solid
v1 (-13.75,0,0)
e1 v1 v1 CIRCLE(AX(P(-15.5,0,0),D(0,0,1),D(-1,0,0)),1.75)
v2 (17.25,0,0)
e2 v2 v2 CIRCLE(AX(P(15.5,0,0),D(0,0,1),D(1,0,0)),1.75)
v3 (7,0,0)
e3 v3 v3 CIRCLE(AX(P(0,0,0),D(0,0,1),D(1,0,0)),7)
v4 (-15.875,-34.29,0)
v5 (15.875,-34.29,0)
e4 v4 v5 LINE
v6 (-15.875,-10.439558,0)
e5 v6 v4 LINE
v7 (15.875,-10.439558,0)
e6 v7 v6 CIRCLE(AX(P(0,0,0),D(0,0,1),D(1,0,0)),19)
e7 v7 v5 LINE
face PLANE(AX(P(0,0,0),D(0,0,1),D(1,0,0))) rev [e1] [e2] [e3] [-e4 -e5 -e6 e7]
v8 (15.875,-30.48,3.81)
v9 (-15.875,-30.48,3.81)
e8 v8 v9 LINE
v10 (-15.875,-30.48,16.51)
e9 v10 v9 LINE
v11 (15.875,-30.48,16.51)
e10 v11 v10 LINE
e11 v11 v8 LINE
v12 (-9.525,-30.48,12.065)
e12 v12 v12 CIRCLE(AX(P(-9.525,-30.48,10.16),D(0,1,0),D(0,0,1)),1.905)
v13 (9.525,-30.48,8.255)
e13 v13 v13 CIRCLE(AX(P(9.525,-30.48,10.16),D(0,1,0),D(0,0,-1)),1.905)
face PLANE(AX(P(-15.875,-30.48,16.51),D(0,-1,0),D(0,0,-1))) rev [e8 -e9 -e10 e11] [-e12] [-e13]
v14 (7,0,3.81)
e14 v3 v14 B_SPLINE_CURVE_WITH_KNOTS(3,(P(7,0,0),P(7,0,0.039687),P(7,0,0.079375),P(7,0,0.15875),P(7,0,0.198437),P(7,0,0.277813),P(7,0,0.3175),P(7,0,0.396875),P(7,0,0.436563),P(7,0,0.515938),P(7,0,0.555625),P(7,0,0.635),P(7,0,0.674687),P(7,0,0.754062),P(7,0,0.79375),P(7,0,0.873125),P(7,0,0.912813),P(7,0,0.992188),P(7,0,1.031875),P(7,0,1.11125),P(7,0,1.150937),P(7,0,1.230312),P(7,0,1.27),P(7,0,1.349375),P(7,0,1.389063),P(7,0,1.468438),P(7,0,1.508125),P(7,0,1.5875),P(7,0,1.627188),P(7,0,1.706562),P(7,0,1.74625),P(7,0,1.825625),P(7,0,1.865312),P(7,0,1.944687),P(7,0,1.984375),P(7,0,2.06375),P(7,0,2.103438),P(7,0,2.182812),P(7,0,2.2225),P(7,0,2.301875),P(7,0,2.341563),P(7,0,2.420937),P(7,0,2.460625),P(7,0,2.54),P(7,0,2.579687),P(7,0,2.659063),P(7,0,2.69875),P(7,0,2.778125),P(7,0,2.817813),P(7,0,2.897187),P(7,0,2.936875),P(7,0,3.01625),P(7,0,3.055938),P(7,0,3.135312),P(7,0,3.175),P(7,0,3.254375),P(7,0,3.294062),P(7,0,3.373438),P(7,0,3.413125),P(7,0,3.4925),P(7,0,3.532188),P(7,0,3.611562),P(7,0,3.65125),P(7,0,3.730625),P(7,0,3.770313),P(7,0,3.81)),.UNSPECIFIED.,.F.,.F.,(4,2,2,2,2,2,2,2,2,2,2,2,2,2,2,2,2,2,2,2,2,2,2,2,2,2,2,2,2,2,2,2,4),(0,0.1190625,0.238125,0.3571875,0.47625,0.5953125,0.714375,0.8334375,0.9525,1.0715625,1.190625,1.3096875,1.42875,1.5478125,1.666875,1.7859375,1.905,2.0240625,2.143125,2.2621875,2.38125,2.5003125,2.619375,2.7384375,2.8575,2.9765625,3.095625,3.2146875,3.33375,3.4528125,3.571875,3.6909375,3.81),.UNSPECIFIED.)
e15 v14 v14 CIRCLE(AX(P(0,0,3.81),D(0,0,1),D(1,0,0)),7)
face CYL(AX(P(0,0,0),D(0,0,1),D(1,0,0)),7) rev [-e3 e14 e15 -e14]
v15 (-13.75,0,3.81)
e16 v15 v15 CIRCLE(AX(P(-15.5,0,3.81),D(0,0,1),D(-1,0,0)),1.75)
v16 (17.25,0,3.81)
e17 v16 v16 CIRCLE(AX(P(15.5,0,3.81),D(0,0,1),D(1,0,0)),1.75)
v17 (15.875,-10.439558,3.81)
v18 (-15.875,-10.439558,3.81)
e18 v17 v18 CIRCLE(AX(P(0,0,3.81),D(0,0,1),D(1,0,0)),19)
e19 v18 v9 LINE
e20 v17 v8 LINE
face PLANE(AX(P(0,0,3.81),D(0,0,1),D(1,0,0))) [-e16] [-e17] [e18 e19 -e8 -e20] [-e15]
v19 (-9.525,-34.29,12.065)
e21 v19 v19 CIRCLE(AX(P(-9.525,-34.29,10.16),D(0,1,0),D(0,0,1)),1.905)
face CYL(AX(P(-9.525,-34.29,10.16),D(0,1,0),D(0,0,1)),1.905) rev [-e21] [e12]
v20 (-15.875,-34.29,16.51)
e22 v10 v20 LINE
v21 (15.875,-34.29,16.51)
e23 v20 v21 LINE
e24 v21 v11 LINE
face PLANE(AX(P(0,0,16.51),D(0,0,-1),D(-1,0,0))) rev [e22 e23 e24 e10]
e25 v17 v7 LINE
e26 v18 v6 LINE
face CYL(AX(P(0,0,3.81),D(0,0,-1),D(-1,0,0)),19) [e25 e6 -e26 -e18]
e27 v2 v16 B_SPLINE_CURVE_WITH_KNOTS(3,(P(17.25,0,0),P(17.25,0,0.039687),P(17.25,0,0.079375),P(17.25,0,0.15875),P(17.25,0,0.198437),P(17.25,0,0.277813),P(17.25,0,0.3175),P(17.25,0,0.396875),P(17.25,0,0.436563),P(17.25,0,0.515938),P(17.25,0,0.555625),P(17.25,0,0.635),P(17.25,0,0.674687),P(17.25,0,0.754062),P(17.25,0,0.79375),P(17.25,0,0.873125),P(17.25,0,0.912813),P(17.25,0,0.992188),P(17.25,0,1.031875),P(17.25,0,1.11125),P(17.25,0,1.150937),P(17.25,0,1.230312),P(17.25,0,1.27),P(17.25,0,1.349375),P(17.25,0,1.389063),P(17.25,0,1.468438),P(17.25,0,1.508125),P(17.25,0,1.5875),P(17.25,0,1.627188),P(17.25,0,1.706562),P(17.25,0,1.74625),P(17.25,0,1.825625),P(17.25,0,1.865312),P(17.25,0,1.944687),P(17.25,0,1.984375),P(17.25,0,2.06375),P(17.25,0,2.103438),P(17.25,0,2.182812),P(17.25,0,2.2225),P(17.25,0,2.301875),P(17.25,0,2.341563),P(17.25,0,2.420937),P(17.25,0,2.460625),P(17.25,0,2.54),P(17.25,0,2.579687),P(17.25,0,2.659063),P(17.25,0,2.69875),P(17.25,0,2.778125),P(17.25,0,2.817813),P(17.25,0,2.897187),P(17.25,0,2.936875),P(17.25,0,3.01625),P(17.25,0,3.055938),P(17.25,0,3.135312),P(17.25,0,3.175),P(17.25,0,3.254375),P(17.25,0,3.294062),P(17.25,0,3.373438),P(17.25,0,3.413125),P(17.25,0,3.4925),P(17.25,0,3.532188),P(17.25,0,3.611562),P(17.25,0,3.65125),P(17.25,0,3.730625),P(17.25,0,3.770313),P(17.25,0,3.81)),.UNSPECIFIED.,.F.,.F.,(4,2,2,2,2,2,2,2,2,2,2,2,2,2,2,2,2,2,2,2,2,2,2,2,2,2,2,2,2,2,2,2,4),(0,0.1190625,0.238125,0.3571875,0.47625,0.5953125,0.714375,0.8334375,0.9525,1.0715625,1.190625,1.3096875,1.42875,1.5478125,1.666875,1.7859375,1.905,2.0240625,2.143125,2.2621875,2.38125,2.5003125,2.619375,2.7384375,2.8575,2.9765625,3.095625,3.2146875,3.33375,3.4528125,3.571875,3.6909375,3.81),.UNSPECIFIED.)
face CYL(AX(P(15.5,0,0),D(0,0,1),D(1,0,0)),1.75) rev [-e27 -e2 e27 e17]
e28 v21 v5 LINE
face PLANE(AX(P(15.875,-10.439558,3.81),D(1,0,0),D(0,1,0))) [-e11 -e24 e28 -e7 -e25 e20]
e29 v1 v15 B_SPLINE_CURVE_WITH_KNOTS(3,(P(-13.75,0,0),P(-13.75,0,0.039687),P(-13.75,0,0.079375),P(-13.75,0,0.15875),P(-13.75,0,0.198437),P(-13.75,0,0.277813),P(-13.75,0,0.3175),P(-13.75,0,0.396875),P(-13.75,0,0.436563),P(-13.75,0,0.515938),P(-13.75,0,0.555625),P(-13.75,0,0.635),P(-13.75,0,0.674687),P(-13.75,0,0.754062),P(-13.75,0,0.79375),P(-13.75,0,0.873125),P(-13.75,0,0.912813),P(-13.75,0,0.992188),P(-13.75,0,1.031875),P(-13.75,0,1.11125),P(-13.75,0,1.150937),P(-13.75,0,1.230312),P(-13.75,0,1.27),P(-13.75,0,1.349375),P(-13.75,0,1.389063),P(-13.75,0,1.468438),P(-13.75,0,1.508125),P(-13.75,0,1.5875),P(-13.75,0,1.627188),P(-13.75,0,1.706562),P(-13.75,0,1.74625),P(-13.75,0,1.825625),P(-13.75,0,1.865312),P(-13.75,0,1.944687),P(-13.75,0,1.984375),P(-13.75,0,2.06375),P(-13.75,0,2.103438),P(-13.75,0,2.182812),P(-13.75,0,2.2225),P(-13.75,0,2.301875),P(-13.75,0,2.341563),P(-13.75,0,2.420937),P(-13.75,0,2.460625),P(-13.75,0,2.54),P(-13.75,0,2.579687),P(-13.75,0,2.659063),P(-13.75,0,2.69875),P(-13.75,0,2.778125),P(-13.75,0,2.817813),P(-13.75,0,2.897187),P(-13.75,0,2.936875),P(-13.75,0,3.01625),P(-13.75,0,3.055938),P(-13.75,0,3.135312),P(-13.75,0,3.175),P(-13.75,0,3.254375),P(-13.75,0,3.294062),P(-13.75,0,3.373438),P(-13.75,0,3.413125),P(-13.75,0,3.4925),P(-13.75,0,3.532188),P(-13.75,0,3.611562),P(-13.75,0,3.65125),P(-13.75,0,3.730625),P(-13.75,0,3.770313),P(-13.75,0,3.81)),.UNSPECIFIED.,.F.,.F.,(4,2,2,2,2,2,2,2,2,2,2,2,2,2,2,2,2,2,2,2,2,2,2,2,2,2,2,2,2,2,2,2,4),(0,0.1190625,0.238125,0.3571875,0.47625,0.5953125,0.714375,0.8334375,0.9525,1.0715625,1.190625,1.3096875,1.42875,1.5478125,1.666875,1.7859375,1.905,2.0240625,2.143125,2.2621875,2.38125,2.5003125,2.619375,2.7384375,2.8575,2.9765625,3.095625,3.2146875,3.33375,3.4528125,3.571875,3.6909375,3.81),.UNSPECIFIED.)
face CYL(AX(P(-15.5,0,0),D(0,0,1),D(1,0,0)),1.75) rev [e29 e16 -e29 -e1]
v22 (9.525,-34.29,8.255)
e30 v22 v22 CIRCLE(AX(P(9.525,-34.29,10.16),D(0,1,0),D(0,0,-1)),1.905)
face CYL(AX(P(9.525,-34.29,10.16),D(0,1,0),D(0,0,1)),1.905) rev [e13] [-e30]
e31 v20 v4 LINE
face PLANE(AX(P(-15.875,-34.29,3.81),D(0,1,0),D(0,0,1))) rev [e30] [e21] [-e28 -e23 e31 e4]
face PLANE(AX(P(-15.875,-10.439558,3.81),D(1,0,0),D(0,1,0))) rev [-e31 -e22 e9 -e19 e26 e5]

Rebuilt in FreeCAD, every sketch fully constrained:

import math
import FreeCAD as App
import Part
import Sketcher
from FreeCAD import Vector


def add_polygon(sketch, points):
    """Adds a closed chain of lines whose ends are joined by coincident constraints."""
    first, n = sketch.GeometryCount, len(points)
    for a, b in zip(points, points[1:] + points[:1]):
        sketch.addGeometry(Part.LineSegment(App.Vector(*a, 0), App.Vector(*b, 0)), False)
    for i in range(n):
        sketch.addConstraint(Sketcher.Constraint("Coincident", first + i, 2, first + (i + 1) % n, 1))

doc = App.newDocument("Part")
body = doc.addObject("PartDesign::Body", "Body")

# Sketch on XY plane
sketch1 = body.newObject("Sketcher::SketchObject", "Sketch")
sketch1.AttachmentSupport = (doc.getObject("XY_Plane"), [""])
sketch1.MapMode = "FlatFace"
sketch1.addGeometry([
    Part.ArcOfCircle(Part.Circle(Vector(0, 0, 0), Vector(0, 0, 1), 19), math.radians(0), math.radians(213)),  # 0
    Part.LineSegment(Vector(-16, -10, 0), Vector(-16, -34, 0)),  # 1
    Part.LineSegment(Vector(-16, -34, 0), Vector(16, -34, 0)),  # 2
    Part.LineSegment(Vector(16, -34, 0), Vector(16, -10, 0)),  # 3
    Part.ArcOfCircle(Part.Circle(Vector(0, 0, 0), Vector(0, 0, 1), 19), math.radians(-33), math.radians(0)),  # 4
], False)
sketch1.addConstraint([
    Sketcher.Constraint("Coincident", 0, 2, 1, 1),
    Sketcher.Constraint("Coincident", 1, 2, 2, 1),
    Sketcher.Constraint("Coincident", 2, 2, 3, 1),
    Sketcher.Constraint("Coincident", 3, 2, 4, 1),
    Sketcher.Constraint("Tangent", 4, 2, 0, 1),
    Sketcher.Constraint("Vertical", 1),
    Sketcher.Constraint("Horizontal", 2),
    Sketcher.Constraint("Vertical", 3),
    Sketcher.Constraint("Coincident", 0, 3, -1, 1),
    Sketcher.Constraint("Equal", 0, 4),
    Sketcher.Constraint("PointOnObject", 4, 2, -1),
    Sketcher.Constraint("Horizontal", 0, 2, 3, 2),
    Sketcher.Constraint("Radius", 0, 19.0),
    Sketcher.Constraint("DistanceX", 2, 1, 2, 2, 31.75),
    Sketcher.Constraint("DistanceY", 1, 2, -1, 1, 34.29),
])
pad1 = body.newObject("PartDesign::Pad", "Pad")
pad1.Profile = sketch1
pad1.Length = 3.81

# Sketch on XY plane
sketch2 = body.newObject("Sketcher::SketchObject", "Sketch001")
sketch2.AttachmentSupport = (doc.getObject("XY_Plane"), [""])
sketch2.MapMode = "FlatFace"
sketch2.AttachmentOffset = App.Placement(Vector(0, 0, 3.81), App.Rotation())
sketch2.addGeometry(Part.Circle(Vector(0, 0, 0), Vector(0, 0, 1), 7), False)
sketch2.addConstraint([
    Sketcher.Constraint("Coincident", 0, 3, -1, 1),
    Sketcher.Constraint("Diameter", 0, 14.0),
])
pocket1 = body.newObject("PartDesign::Pocket", "Pocket")
pocket1.Profile = sketch2
pocket1.Type = "ThroughAll"

# Sketch on XY plane
sketch3 = body.newObject("Sketcher::SketchObject", "Sketch002")
sketch3.AttachmentSupport = (doc.getObject("XY_Plane"), [""])
sketch3.MapMode = "FlatFace"
sketch3.AttachmentOffset = App.Placement(Vector(0, 0, 3.81), App.Rotation())
add_polygon(sketch3, [(-15.9, -30.5), (-15.9, -34.3), (15.9, -34.3), (15.9, -30.5)])  # lines 0-3
sketch3.addConstraint([
    Sketcher.Constraint("Vertical", 0),
    Sketcher.Constraint("Horizontal", 1),
    Sketcher.Constraint("Vertical", 2),
    Sketcher.Constraint("Horizontal", 3),
    Sketcher.Constraint("DistanceX", 1, 1, 1, 2, 31.75),
    Sketcher.Constraint("DistanceY", 0, 2, 0, 1, 3.81),
    Sketcher.Constraint("DistanceY", 0, 2, -1, 1, 34.29),
    Sketcher.Constraint("DistanceX", 0, 2, -1, 1, 15.875),
])
pad2 = body.newObject("PartDesign::Pad", "Pad001")
pad2.Profile = sketch3
pad2.Length = 12.7

# Sketch on XZ plane
sketch4 = body.newObject("Sketcher::SketchObject", "Sketch003")
sketch4.AttachmentSupport = (doc.getObject("XZ_Plane"), [""])
sketch4.MapMode = "FlatFace"
sketch4.AttachmentOffset = App.Placement(Vector(0, 0, 30.48), App.Rotation())
sketch4.addGeometry([
    Part.Circle(Vector(-9.5, 10.2, 0), Vector(0, 0, 1), 1.9),
    Part.Circle(Vector(9.5, 10.2, 0), Vector(0, 0, 1), 1.9),
], False)
sketch4.addConstraint([
    Sketcher.Constraint("Equal", 0, 1),
    Sketcher.Constraint("Symmetric", 0, 3, 1, 3, -2),
    Sketcher.Constraint("Diameter", 0, 3.81),
    Sketcher.Constraint("DistanceY", -1, 1, 0, 3, 10.16),
    Sketcher.Constraint("DistanceX", 0, 3, 1, 3, 19.05),
])
pocket2 = body.newObject("PartDesign::Pocket", "Pocket001")
pocket2.Profile = sketch4
pocket2.Type = "ThroughAll"
pocket2.Reversed = True

# Sketch on XY plane
sketch5 = body.newObject("Sketcher::SketchObject", "Sketch004")
sketch5.AttachmentSupport = (doc.getObject("XY_Plane"), [""])
sketch5.MapMode = "FlatFace"
sketch5.AttachmentOffset = App.Placement(Vector(0, 0, 3.81), App.Rotation())
sketch5.addGeometry([
    Part.Circle(Vector(15.5, 0, 0), Vector(0, 0, 1), 1.8),
    Part.Circle(Vector(-15.5, 0, 0), Vector(0, 0, 1), 1.8),
], False)
sketch5.addConstraint([
    Sketcher.Constraint("Equal", 0, 1),
    Sketcher.Constraint("Symmetric", 0, 3, 1, 3, -1, 1),
    Sketcher.Constraint("PointOnObject", 0, 3, -1),
    Sketcher.Constraint("Diameter", 0, 3.5),
    Sketcher.Constraint("DistanceX", 1, 3, 0, 3, 31.0),
])
pocket3 = body.newObject("PartDesign::Pocket", "Pocket002")
pocket3.Profile = sketch5
pocket3.Type = "ThroughAll"

doc.recompute()
